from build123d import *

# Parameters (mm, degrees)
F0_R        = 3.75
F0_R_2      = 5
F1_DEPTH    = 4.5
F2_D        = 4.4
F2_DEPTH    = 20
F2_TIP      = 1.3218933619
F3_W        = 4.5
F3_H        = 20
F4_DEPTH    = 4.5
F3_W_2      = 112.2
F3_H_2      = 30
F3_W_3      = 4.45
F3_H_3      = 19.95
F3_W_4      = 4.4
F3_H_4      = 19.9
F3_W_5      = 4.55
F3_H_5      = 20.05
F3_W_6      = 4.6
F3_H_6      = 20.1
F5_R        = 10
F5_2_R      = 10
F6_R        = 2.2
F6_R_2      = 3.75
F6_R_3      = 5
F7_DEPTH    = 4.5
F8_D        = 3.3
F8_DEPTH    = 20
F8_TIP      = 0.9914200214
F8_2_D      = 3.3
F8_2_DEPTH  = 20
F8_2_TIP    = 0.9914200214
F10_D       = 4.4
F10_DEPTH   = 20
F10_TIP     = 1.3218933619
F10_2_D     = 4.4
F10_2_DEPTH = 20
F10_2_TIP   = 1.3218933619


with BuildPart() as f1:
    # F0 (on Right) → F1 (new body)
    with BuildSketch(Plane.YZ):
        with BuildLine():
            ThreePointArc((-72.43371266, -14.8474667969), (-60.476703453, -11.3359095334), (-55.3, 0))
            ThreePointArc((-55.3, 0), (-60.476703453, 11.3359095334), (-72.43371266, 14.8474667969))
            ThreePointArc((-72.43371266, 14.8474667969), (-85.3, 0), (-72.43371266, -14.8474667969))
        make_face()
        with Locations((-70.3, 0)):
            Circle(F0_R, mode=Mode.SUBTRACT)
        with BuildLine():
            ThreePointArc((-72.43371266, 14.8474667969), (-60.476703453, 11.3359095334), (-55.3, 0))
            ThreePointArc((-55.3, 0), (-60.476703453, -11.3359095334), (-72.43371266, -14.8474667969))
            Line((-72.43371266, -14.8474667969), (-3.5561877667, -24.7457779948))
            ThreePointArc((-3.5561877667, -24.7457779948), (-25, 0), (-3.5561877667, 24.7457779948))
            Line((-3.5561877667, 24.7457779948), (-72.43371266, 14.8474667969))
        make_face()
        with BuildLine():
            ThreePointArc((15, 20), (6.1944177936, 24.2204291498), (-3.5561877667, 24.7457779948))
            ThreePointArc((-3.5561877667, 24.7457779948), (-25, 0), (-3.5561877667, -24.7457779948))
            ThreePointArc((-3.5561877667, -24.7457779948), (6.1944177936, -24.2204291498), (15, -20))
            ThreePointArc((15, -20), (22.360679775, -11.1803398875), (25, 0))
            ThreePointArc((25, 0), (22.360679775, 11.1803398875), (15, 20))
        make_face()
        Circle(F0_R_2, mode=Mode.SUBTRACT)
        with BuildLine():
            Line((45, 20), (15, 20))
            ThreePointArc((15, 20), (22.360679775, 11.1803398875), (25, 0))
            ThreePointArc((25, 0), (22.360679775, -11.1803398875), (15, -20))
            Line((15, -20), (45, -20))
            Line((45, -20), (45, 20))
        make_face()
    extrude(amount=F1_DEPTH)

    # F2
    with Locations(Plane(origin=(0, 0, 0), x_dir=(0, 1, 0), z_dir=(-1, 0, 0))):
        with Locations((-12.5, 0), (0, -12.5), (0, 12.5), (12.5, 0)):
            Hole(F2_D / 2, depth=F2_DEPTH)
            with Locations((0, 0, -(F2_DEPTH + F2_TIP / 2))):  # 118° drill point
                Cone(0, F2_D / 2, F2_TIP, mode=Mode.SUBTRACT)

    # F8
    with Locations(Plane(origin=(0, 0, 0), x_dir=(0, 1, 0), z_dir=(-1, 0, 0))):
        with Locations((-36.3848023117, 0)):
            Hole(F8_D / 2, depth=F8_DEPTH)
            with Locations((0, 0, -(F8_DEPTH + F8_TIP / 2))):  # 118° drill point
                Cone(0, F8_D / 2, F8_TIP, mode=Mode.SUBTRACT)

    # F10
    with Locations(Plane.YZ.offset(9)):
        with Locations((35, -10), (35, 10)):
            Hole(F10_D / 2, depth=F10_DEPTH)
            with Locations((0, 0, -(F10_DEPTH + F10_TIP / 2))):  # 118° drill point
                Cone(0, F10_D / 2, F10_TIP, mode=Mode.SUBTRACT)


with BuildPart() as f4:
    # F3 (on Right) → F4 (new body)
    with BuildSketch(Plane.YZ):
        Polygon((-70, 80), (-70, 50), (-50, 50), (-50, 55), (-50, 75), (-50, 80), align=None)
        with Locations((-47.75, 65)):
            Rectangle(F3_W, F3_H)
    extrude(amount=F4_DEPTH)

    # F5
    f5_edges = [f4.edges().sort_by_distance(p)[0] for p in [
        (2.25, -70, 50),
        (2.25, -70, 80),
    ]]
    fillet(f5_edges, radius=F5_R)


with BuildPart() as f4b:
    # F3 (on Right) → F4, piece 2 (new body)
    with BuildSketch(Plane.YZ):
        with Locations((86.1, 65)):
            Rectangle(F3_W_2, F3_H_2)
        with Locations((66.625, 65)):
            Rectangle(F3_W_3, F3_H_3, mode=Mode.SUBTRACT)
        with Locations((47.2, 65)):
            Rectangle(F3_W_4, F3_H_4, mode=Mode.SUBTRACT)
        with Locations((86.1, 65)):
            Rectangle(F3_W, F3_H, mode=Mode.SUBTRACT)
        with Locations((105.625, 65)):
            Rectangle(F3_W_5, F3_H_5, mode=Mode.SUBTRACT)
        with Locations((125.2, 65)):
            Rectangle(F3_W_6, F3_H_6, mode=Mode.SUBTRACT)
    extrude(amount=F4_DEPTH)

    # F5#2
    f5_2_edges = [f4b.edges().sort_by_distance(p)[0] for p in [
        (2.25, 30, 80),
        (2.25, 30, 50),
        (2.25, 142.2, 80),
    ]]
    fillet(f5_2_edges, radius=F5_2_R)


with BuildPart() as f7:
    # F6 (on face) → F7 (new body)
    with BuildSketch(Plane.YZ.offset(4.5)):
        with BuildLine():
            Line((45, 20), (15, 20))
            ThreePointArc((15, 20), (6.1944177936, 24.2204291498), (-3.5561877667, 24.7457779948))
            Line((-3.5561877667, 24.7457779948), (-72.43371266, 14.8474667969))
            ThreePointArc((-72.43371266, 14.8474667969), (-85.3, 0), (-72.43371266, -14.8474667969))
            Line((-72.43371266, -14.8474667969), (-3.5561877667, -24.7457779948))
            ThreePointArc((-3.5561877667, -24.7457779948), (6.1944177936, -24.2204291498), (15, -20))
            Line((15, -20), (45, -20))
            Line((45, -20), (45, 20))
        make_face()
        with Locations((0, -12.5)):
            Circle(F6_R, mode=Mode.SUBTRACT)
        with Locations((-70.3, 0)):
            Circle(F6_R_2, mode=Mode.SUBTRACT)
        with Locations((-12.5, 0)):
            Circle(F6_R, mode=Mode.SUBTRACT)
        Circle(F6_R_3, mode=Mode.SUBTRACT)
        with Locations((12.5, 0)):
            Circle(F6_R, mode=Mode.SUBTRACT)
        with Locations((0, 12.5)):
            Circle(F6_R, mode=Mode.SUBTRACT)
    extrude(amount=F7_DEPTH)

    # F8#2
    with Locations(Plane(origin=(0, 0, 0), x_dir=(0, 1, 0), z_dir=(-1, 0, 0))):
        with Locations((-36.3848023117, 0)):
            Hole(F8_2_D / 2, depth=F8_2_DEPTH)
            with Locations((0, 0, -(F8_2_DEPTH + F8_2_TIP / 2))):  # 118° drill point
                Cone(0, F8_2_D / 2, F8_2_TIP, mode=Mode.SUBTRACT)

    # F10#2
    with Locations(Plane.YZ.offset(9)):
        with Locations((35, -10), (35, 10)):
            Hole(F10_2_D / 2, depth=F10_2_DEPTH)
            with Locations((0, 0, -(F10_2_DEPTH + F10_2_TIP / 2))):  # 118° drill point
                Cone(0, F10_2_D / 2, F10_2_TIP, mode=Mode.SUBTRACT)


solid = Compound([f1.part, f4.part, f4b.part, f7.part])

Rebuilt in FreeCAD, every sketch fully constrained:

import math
import FreeCAD as App
import Part
import Sketcher


def edges_at(feature, points):
    """Names of the edges that pass closest to the given points."""
    edges = feature.Shape.Edges
    near = lambda p: min(range(len(edges)), key=lambda i: edges[i].distToShape(Part.Vertex(*p))[0])
    return sorted({f"Edge{near(p) + 1}" for p in points})


def add_polygon(sketch, points):
    """Adds a closed chain of lines whose ends are joined by coincident constraints."""
    first, n = sketch.GeometryCount, len(points)
    for a, b in zip(points, points[1:] + points[:1]):
        sketch.addGeometry(Part.LineSegment(App.Vector(*a, 0), App.Vector(*b, 0)), False)
    for i in range(n):
        sketch.addConstraint(Sketcher.Constraint("Coincident", first + i, 2, first + (i + 1) % n, 1))

doc = App.newDocument("Part")
body = doc.addObject("PartDesign::Body", "Body")

sketch1 = doc.addObject("Sketcher::SketchObject", "Sketch")
body.addObject(sketch1)
sketch1.AttachmentSupport = (doc.YZ_Plane, [""])
sketch1.MapMode = "FlatFace"
sketch1.addGeometry([
    Part.ArcOfCircle(Part.Circle(App.Vector(-70.3, 0, 0), App.Vector(0, 0, 1), 15), math.radians(98.177921), math.radians(261.822079)),
    Part.LineSegment(App.Vector(-72.433713, -14.847467, 0), App.Vector(-3.556188, -24.745778, 0)),
    Part.ArcOfCircle(Part.Circle(App.Vector(0, 0, 0), App.Vector(0, 0, 1), 25), math.radians(-98.177921), math.radians(-53.130102)),
    Part.LineSegment(App.Vector(15, -20, 0), App.Vector(45, -20, 0)),
    Part.LineSegment(App.Vector(45, -20, 0), App.Vector(45, 20, 0)),
    Part.LineSegment(App.Vector(45, 20, 0), App.Vector(15, 20, 0)),
    Part.ArcOfCircle(Part.Circle(App.Vector(0, 0, 0), App.Vector(0, 0, 1), 25), math.radians(53.130102), math.radians(98.177921)),
    Part.LineSegment(App.Vector(-3.556188, 24.745778, 0), App.Vector(-72.433713, 14.847467, 0)),
    Part.Circle(App.Vector(-70.3, 0, 0), App.Vector(0, 0, 1), 3.75),
    Part.Circle(App.Vector(0, 0, 0), App.Vector(0, 0, 1), 5),
], False)
sketch1.addConstraint([
    Sketcher.Constraint("Tangent", 0, 2, 1, 1),
    Sketcher.Constraint("Tangent", 1, 2, 2, 1),
    Sketcher.Constraint("Coincident", 2, 2, 3, 1),
    Sketcher.Constraint("Coincident", 3, 2, 4, 1),
    Sketcher.Constraint("Coincident", 4, 2, 5, 1),
    Sketcher.Constraint("Coincident", 5, 2, 6, 1),
    Sketcher.Constraint("Tangent", 6, 2, 7, 1),
    Sketcher.Constraint("Tangent", 7, 2, 0, 1),
    Sketcher.Constraint("Horizontal", 3),
    Sketcher.Constraint("Vertical", 4),
    Sketcher.Constraint("Horizontal", 5),
    Sketcher.Constraint("Coincident", 2, 3, -1, 1),
    Sketcher.Constraint("Coincident", 6, 3, -1, 1),
    Sketcher.Constraint("Coincident", 9, 3, -1, 1),
    Sketcher.Constraint("Coincident", 8, 3, 0, 3),
    Sketcher.Constraint("Equal", 2, 6),
    Sketcher.Constraint("PointOnObject", 0, 3, -1),
    Sketcher.Constraint("Vertical", 2, 2, 5, 2),
    Sketcher.Constraint("Diameter", 9, 10.0),
    Sketcher.Constraint("Radius", 0, 15.0),
    Sketcher.Constraint("Radius", 2, 25.0),
    Sketcher.Constraint("Diameter", 8, 7.5),
    Sketcher.Constraint("DistanceX", 3, 1, 3, 2, 30.0),
    Sketcher.Constraint("DistanceY", 4, 1, 4, 2, 40.0),
    Sketcher.Constraint("DistanceX", 0, 3, -1, 1, 70.3),
])
pad1 = doc.addObject("PartDesign::Pad", "Pad")
body.addObject(pad1)
pad1.Profile = sketch1
pad1.Length = 4.5

sketch2 = doc.addObject("Sketcher::SketchObject", "Sketch001")
body.addObject(sketch2)
sketch2.AttachmentSupport = (doc.YZ_Plane, [""])
sketch2.MapMode = "FlatFace"
sketch2.addGeometry([
    Part.Circle(App.Vector(-12.5, 0, 0), App.Vector(0, 0, 1), 2.2),
    Part.Circle(App.Vector(0, 12.5, 0), App.Vector(0, 0, 1), 2.2),
    Part.Circle(App.Vector(0, -12.5, 0), App.Vector(0, 0, 1), 2.2),
    Part.Circle(App.Vector(12.5, 0, 0), App.Vector(0, 0, 1), 2.2),
], False)
sketch2.addConstraint([
    Sketcher.Constraint("Equal", 0, 1),
    Sketcher.Constraint("Equal", 1, 2),
    Sketcher.Constraint("Equal", 2, 3),
    Sketcher.Constraint("Symmetric", 1, 3, 2, 3, -1, 1),
    Sketcher.Constraint("Symmetric", 0, 3, 3, 3, -1, 1),
    Sketcher.Constraint("PointOnObject", 0, 3, -1),
    Sketcher.Constraint("PointOnObject", 1, 3, -2),
    Sketcher.Constraint("Diameter", 0, 4.4),
    Sketcher.Constraint("DistanceY", 2, 3, 1, 3, 25.0),
    Sketcher.Constraint("DistanceX", 0, 3, 3, 3, 25.0),
])
doc.recompute()
hole = doc.addObject("PartDesign::Hole", "Hole")
body.addObject(hole)
hole.Profile = sketch2
hole.ThreadType = "None"
hole.Diameter = 4.4
hole.DepthType = "Dimension"
hole.Depth = 20
hole.DrillPoint = "Angled"
hole.DrillPointAngle = 118
hole.Reversed = True

sketch3 = doc.addObject("Sketcher::SketchObject", "Sketch002")
body.addObject(sketch3)
sketch3.AttachmentSupport = (doc.YZ_Plane, [""])
sketch3.MapMode = "FlatFace"
sketch3.addGeometry(Part.Circle(App.Vector(-36.384802, 0, 0), App.Vector(0, 0, 1), 1.65), False)
sketch3.addConstraint([
    Sketcher.Constraint("PointOnObject", 0, 3, -1),
    Sketcher.Constraint("Diameter", 0, 3.3),
    Sketcher.Constraint("DistanceX", 0, 3, -1, 1, 36.384802),
])
doc.recompute()
hole2 = doc.addObject("PartDesign::Hole", "Hole001")
body.addObject(hole2)
hole2.Profile = sketch3
hole2.ThreadType = "None"
hole2.Diameter = 3.3
hole2.DepthType = "Dimension"
hole2.Depth = 20
hole2.DrillPoint = "Angled"
hole2.DrillPointAngle = 118
hole2.Reversed = True

sketch4 = doc.addObject("Sketcher::SketchObject", "Sketch003")
body.addObject(sketch4)
sketch4.AttachmentSupport = (doc.YZ_Plane, [""])
sketch4.MapMode = "FlatFace"
sketch4.AttachmentOffset = App.Placement(App.Vector(0, 0, 9), App.Rotation())
sketch4.addGeometry([
    Part.Circle(App.Vector(35, -10, 0), App.Vector(0, 0, 1), 2.2),
    Part.Circle(App.Vector(35, 10, 0), App.Vector(0, 0, 1), 2.2),
], False)
sketch4.addConstraint([
    Sketcher.Constraint("Equal", 0, 1),
    Sketcher.Constraint("Symmetric", 0, 3, 1, 3, -1),
    Sketcher.Constraint("Diameter", 0, 4.4),
    Sketcher.Constraint("DistanceX", -1, 1, 0, 3, 35.0),
    Sketcher.Constraint("DistanceY", 0, 3, -1, 1, 10.0),
])
doc.recompute()
hole3 = doc.addObject("PartDesign::Hole", "Hole002")
body.addObject(hole3)
hole3.Profile = sketch4
hole3.ThreadType = "None"
hole3.Diameter = 4.4
hole3.DepthType = "Dimension"
hole3.Depth = 20
hole3.DrillPoint = "Angled"
hole3.DrillPointAngle = 118
body2 = doc.addObject("PartDesign::Body", "Body001")

sketch5 = doc.addObject("Sketcher::SketchObject", "Sketch004")
body2.addObject(sketch5)
sketch5.AttachmentSupport = (doc.getObject("YZ_Plane001"), [""])
sketch5.MapMode = "FlatFace"
add_polygon(sketch5, [(-70, 80), (-70, 50), (-50, 50), (-50, 55), (-45.5, 55), (-45.5, 75), (-50, 75), (-50, 80)])
sketch5.addConstraint([
    Sketcher.Constraint("Vertical", 0),
    Sketcher.Constraint("Horizontal", 1),
    Sketcher.Constraint("Vertical", 2),
    Sketcher.Constraint("Horizontal", 3),
    Sketcher.Constraint("Vertical", 4),
    Sketcher.Constraint("Horizontal", 5),
    Sketcher.Constraint("Vertical", 6),
    Sketcher.Constraint("Horizontal", 7),
    Sketcher.Constraint("Vertical", 2, 2, 5, 2),
    Sketcher.Constraint("Equal", 7, 4),
    Sketcher.Constraint("Equal", 2, 6),
    Sketcher.Constraint("DistanceX", 1, 1, 1, 2, 20.0),
    Sketcher.Constraint("DistanceY", 0, 2, 0, 1, 30.0),
    Sketcher.Constraint("DistanceX", 3, 1, 3, 2, 4.5),
    Sketcher.Constraint("DistanceX", 0, 2, -1, 1, 70.0),
    Sketcher.Constraint("DistanceY", -1, 1, 0, 2, 50.0),
])
pad2 = doc.addObject("PartDesign::Pad", "Pad001")
body2.addObject(pad2)
pad2.Profile = sketch5
pad2.Length = 4.5
doc.recompute()

fillet = doc.addObject("PartDesign::Fillet", "Fillet")
body2.addObject(fillet)
fillet.Base = (pad2, edges_at(pad2, [(2.25, -70, 50), (2.25, -70, 80)]))
fillet.Radius = 10
body3 = doc.addObject("PartDesign::Body", "Body002")

sketch6 = doc.addObject("Sketcher::SketchObject", "Sketch005")
body3.addObject(sketch6)
sketch6.AttachmentSupport = (doc.getObject("YZ_Plane002"), [""])
sketch6.MapMode = "FlatFace"
add_polygon(sketch6, [(30, 80), (30, 50), (142.2, 50), (142.2, 80)])
add_polygon(sketch6, [(49.4, 55.05), (45, 55.05), (45, 74.95), (49.4, 74.95)])
add_polygon(sketch6, [(68.85, 55.025), (64.4, 55.025), (64.4, 74.975), (68.85, 74.975)])
add_polygon(sketch6, [(88.35, 55), (83.85, 55), (83.85, 75), (88.35, 75)])
add_polygon(sketch6, [(107.9, 54.975), (103.35, 54.975), (103.35, 75.025), (107.9, 75.025)])
add_polygon(sketch6, [(127.5, 54.95), (122.9, 54.95), (122.9, 75.05), (127.5, 75.05)])
sketch6.addConstraint([
    Sketcher.Constraint("Vertical", 0),
    Sketcher.Constraint("Horizontal", 1),
    Sketcher.Constraint("Vertical", 2),
    Sketcher.Constraint("Horizontal", 3),
    Sketcher.Constraint("Horizontal", 4),
    Sketcher.Constraint("Vertical", 5),
    Sketcher.Constraint("Horizontal", 6),
    Sketcher.Constraint("Vertical", 7),
    Sketcher.Constraint("Horizontal", 8),
    Sketcher.Constraint("Vertical", 9),
    Sketcher.Constraint("Horizontal", 10),
    Sketcher.Constraint("Vertical", 11),
    Sketcher.Constraint("Horizontal", 12),
    Sketcher.Constraint("Vertical", 13),
    Sketcher.Constraint("Horizontal", 14),
    Sketcher.Constraint("Vertical", 15),
    Sketcher.Constraint("Horizontal", 16),
    Sketcher.Constraint("Vertical", 17),
    Sketcher.Constraint("Horizontal", 18),
    Sketcher.Constraint("Vertical", 19),
    Sketcher.Constraint("Horizontal", 20),
    Sketcher.Constraint("Vertical", 21),
    Sketcher.Constraint("Horizontal", 22),
    Sketcher.Constraint("Vertical", 23),
    Sketcher.Constraint("DistanceY", 0, 2, 0, 1, 30.0),
    Sketcher.Constraint("DistanceY", 13, 1, 13, 2, 20.0),
    Sketcher.Constraint("DistanceX", 1, 1, 1, 2, 112.2),
    Sketcher.Constraint("DistanceX", 4, 2, 4, 1, 4.4),
    Sketcher.Constraint("DistanceX", 12, 2, 12, 1, 4.5),
    Sketcher.Constraint("DistanceX", 20, 2, 20, 1, 4.6),
    Sketcher.Constraint("DistanceY", 5, 1, 5, 2, 19.9),
    Sketcher.Constraint("DistanceY", 21, 1, 21, 2, 20.1),
    Sketcher.Constraint("DistanceX", -1, 1, 0, 2, 30.0),
    Sketcher.Constraint("DistanceY", -1, 1, 0, 2, 50.0),
    Sketcher.Constraint("DistanceX", -1, 1, 4, 2, 45.0),
    Sketcher.Constraint("DistanceY", -1, 1, 12, 2, 55.0),
    Sketcher.Constraint("DistanceX", 7, 2, 8, 2, 15.0),
    Sketcher.Constraint("DistanceX", 11, 2, 12, 2, 15.0),
    Sketcher.Constraint("DistanceX", 15, 2, 16, 2, 15.0),
    Sketcher.Constraint("DistanceX", 19, 2, 20, 2, 15.0),
    Sketcher.Constraint("DistanceX", 8, 2, 8, 1, 4.45),
    Sketcher.Constraint("DistanceX", 16, 2, 16, 1, 4.55),
    Sketcher.Constraint("DistanceY", 9, 1, 9, 2, 19.95),
    Sketcher.Constraint("DistanceY", 17, 1, 17, 2, 20.05),
    Sketcher.Constraint("DistanceY", -1, 1, 4, 2, 55.05),
    Sketcher.Constraint("DistanceY", -1, 1, 20, 2, 54.95),
    Sketcher.Constraint("DistanceY", 16, 2, 11, 2, 0.05),
    Sketcher.Constraint("DistanceY", -1, 1, 8, 2, 55.025),
])
pad3 = doc.addObject("PartDesign::Pad", "Pad002")
body3.addObject(pad3)
pad3.Profile = sketch6
pad3.Length = 4.5
doc.recompute()

fillet2 = doc.addObject("PartDesign::Fillet", "Fillet001")
body3.addObject(fillet2)
fillet2.Base = (pad3, edges_at(pad3, [(2.25, 30, 80), (2.25, 30, 50), (2.25, 142.2, 80)]))
fillet2.Radius = 10
body4 = doc.addObject("PartDesign::Body", "Body003")

sketch7 = doc.addObject("Sketcher::SketchObject", "Sketch006")
body4.addObject(sketch7)
sketch7.AttachmentSupport = (doc.getObject("YZ_Plane003"), [""])
sketch7.MapMode = "FlatFace"
sketch7.AttachmentOffset = App.Placement(App.Vector(0, 0, 4.5), App.Rotation())
sketch7.addGeometry([
    Part.LineSegment(App.Vector(45, 20, 0), App.Vector(15, 20, 0)),
    Part.ArcOfCircle(Part.Circle(App.Vector(0, 0, 0), App.Vector(0, 0, 1), 25), math.radians(53.130102), math.radians(98.177921)),
    Part.LineSegment(App.Vector(-3.556188, 24.745778, 0), App.Vector(-72.433713, 14.847467, 0)),
    Part.ArcOfCircle(Part.Circle(App.Vector(-70.3, 0, 0), App.Vector(0, 0, 1), 15), math.radians(98.177921), math.radians(261.822079)),
    Part.LineSegment(App.Vector(-72.433713, -14.847467, 0), App.Vector(-3.556188, -24.745778, 0)),
    Part.ArcOfCircle(Part.Circle(App.Vector(0, 0, 0), App.Vector(0, 0, 1), 25), math.radians(-98.177921), math.radians(-53.130102)),
    Part.LineSegment(App.Vector(15, -20, 0), App.Vector(45, -20, 0)),
    Part.LineSegment(App.Vector(45, -20, 0), App.Vector(45, 20, 0)),
    Part.Circle(App.Vector(0, -12.5, 0), App.Vector(0, 0, 1), 2.2),
    Part.Circle(App.Vector(-70.3, 0, 0), App.Vector(0, 0, 1), 3.75),
    Part.Circle(App.Vector(-12.5, 0, 0), App.Vector(0, 0, 1), 2.2),
    Part.Circle(App.Vector(0, 0, 0), App.Vector(0, 0, 1), 5),
    Part.Circle(App.Vector(12.5, 0, 0), App.Vector(0, 0, 1), 2.2),
    Part.Circle(App.Vector(0, 12.5, 0), App.Vector(0, 0, 1), 2.2),
], False)
sketch7.addConstraint([
    Sketcher.Constraint("Coincident", 0, 2, 1, 1),
    Sketcher.Constraint("Tangent", 1, 2, 2, 1),
    Sketcher.Constraint("Tangent", 2, 2, 3, 1),
    Sketcher.Constraint("Tangent", 3, 2, 4, 1),
    Sketcher.Constraint("Tangent", 4, 2, 5, 1),
    Sketcher.Constraint("Coincident", 5, 2, 6, 1),
    Sketcher.Constraint("Coincident", 6, 2, 7, 1),
    Sketcher.Constraint("Coincident", 7, 2, 0, 1),
    Sketcher.Constraint("Horizontal", 0),
    Sketcher.Constraint("Horizontal", 6),
    Sketcher.Constraint("Vertical", 7),
    Sketcher.Constraint("Coincident", 1, 3, -1, 1),
    Sketcher.Constraint("Coincident", 5, 3, -1, 1),
    Sketcher.Constraint("Coincident", 11, 3, -1, 1),
    Sketcher.Constraint("Coincident", 9, 3, 3, 3),
    Sketcher.Constraint("Equal", 1, 5),
    Sketcher.Constraint("Equal", 8, 10),
    Sketcher.Constraint("Equal", 10, 12),
    Sketcher.Constraint("Equal", 12, 13),
    Sketcher.Constraint("Symmetric", 10, 3, 12, 3, -1, 1),
    Sketcher.Constraint("Symmetric", 8, 3, 13, 3, -1, 1),
    Sketcher.Constraint("PointOnObject", 3, 3, -1),
    Sketcher.Constraint("PointOnObject", 8, 3, -2),
    Sketcher.Constraint("PointOnObject", 10, 3, -1),
    Sketcher.Constraint("Vertical", 0, 2, 5, 2),
    Sketcher.Constraint("Diameter", 11, 10.0),
    Sketcher.Constraint("Radius", 1, 25.0),
    Sketcher.Constraint("Radius", 3, 15.0),
    Sketcher.Constraint("Diameter", 8, 4.4),
    Sketcher.Constraint("Diameter", 9, 7.5),
    Sketcher.Constraint("DistanceX", 0, 2, 0, 1, 30.0),
    Sketcher.Constraint("DistanceY", 7, 1, 7, 2, 40.0),
    Sketcher.Constraint("DistanceX", 10, 3, 12, 3, 25.0),
    Sketcher.Constraint("DistanceX", 3, 3, -1, 1, 70.3),
    Sketcher.Constraint("DistanceY", 8, 3, -1, 1, 12.5),
])
pad4 = doc.addObject("PartDesign::Pad", "Pad003")
body4.addObject(pad4)
pad4.Profile = sketch7
pad4.Length = 4.5

sketch8 = doc.addObject("Sketcher::SketchObject", "Sketch007")
body4.addObject(sketch8)
sketch8.AttachmentSupport = (doc.getObject("YZ_Plane003"), [""])
sketch8.MapMode = "FlatFace"
sketch8.addGeometry(Part.Circle(App.Vector(-36.384802, 0, 0), App.Vector(0, 0, 1), 1.65), False)
sketch8.addConstraint([
    Sketcher.Constraint("PointOnObject", 0, 3, -1),
    Sketcher.Constraint("Diameter", 0, 3.3),
    Sketcher.Constraint("DistanceX", 0, 3, -1, 1, 36.384802),
])
doc.recompute()
hole4 = doc.addObject("PartDesign::Hole", "Hole003")
body4.addObject(hole4)
hole4.Profile = sketch8
hole4.ThreadType = "None"
hole4.Diameter = 3.3
hole4.DepthType = "Dimension"
hole4.Depth = 20
hole4.DrillPoint = "Angled"
hole4.DrillPointAngle = 118
hole4.Reversed = True

sketch9 = doc.addObject("Sketcher::SketchObject", "Sketch008")
body4.addObject(sketch9)
sketch9.AttachmentSupport = (doc.getObject("YZ_Plane003"), [""])
sketch9.MapMode = "FlatFace"
sketch9.AttachmentOffset = App.Placement(App.Vector(0, 0, 9), App.Rotation())
sketch9.addGeometry([
    Part.Circle(App.Vector(35, -10, 0), App.Vector(0, 0, 1), 2.2),
    Part.Circle(App.Vector(35, 10, 0), App.Vector(0, 0, 1), 2.2),
], False)
sketch9.addConstraint([
    Sketcher.Constraint("Equal", 0, 1),
    Sketcher.Constraint("Symmetric", 0, 3, 1, 3, -1),
    Sketcher.Constraint("Diameter", 0, 4.4),
    Sketcher.Constraint("DistanceX", -1, 1, 0, 3, 35.0),
    Sketcher.Constraint("DistanceY", 0, 3, -1, 1, 10.0),
])
doc.recompute()
hole5 = doc.addObject("PartDesign::Hole", "Hole004")
body4.addObject(hole5)
hole5.Profile = sketch9
hole5.ThreadType = "None"
hole5.Diameter = 4.4
hole5.DepthType = "Dimension"
hole5.Depth = 20
hole5.DrillPoint = "Angled"
hole5.DrillPointAngle = 118

doc.recompute()
